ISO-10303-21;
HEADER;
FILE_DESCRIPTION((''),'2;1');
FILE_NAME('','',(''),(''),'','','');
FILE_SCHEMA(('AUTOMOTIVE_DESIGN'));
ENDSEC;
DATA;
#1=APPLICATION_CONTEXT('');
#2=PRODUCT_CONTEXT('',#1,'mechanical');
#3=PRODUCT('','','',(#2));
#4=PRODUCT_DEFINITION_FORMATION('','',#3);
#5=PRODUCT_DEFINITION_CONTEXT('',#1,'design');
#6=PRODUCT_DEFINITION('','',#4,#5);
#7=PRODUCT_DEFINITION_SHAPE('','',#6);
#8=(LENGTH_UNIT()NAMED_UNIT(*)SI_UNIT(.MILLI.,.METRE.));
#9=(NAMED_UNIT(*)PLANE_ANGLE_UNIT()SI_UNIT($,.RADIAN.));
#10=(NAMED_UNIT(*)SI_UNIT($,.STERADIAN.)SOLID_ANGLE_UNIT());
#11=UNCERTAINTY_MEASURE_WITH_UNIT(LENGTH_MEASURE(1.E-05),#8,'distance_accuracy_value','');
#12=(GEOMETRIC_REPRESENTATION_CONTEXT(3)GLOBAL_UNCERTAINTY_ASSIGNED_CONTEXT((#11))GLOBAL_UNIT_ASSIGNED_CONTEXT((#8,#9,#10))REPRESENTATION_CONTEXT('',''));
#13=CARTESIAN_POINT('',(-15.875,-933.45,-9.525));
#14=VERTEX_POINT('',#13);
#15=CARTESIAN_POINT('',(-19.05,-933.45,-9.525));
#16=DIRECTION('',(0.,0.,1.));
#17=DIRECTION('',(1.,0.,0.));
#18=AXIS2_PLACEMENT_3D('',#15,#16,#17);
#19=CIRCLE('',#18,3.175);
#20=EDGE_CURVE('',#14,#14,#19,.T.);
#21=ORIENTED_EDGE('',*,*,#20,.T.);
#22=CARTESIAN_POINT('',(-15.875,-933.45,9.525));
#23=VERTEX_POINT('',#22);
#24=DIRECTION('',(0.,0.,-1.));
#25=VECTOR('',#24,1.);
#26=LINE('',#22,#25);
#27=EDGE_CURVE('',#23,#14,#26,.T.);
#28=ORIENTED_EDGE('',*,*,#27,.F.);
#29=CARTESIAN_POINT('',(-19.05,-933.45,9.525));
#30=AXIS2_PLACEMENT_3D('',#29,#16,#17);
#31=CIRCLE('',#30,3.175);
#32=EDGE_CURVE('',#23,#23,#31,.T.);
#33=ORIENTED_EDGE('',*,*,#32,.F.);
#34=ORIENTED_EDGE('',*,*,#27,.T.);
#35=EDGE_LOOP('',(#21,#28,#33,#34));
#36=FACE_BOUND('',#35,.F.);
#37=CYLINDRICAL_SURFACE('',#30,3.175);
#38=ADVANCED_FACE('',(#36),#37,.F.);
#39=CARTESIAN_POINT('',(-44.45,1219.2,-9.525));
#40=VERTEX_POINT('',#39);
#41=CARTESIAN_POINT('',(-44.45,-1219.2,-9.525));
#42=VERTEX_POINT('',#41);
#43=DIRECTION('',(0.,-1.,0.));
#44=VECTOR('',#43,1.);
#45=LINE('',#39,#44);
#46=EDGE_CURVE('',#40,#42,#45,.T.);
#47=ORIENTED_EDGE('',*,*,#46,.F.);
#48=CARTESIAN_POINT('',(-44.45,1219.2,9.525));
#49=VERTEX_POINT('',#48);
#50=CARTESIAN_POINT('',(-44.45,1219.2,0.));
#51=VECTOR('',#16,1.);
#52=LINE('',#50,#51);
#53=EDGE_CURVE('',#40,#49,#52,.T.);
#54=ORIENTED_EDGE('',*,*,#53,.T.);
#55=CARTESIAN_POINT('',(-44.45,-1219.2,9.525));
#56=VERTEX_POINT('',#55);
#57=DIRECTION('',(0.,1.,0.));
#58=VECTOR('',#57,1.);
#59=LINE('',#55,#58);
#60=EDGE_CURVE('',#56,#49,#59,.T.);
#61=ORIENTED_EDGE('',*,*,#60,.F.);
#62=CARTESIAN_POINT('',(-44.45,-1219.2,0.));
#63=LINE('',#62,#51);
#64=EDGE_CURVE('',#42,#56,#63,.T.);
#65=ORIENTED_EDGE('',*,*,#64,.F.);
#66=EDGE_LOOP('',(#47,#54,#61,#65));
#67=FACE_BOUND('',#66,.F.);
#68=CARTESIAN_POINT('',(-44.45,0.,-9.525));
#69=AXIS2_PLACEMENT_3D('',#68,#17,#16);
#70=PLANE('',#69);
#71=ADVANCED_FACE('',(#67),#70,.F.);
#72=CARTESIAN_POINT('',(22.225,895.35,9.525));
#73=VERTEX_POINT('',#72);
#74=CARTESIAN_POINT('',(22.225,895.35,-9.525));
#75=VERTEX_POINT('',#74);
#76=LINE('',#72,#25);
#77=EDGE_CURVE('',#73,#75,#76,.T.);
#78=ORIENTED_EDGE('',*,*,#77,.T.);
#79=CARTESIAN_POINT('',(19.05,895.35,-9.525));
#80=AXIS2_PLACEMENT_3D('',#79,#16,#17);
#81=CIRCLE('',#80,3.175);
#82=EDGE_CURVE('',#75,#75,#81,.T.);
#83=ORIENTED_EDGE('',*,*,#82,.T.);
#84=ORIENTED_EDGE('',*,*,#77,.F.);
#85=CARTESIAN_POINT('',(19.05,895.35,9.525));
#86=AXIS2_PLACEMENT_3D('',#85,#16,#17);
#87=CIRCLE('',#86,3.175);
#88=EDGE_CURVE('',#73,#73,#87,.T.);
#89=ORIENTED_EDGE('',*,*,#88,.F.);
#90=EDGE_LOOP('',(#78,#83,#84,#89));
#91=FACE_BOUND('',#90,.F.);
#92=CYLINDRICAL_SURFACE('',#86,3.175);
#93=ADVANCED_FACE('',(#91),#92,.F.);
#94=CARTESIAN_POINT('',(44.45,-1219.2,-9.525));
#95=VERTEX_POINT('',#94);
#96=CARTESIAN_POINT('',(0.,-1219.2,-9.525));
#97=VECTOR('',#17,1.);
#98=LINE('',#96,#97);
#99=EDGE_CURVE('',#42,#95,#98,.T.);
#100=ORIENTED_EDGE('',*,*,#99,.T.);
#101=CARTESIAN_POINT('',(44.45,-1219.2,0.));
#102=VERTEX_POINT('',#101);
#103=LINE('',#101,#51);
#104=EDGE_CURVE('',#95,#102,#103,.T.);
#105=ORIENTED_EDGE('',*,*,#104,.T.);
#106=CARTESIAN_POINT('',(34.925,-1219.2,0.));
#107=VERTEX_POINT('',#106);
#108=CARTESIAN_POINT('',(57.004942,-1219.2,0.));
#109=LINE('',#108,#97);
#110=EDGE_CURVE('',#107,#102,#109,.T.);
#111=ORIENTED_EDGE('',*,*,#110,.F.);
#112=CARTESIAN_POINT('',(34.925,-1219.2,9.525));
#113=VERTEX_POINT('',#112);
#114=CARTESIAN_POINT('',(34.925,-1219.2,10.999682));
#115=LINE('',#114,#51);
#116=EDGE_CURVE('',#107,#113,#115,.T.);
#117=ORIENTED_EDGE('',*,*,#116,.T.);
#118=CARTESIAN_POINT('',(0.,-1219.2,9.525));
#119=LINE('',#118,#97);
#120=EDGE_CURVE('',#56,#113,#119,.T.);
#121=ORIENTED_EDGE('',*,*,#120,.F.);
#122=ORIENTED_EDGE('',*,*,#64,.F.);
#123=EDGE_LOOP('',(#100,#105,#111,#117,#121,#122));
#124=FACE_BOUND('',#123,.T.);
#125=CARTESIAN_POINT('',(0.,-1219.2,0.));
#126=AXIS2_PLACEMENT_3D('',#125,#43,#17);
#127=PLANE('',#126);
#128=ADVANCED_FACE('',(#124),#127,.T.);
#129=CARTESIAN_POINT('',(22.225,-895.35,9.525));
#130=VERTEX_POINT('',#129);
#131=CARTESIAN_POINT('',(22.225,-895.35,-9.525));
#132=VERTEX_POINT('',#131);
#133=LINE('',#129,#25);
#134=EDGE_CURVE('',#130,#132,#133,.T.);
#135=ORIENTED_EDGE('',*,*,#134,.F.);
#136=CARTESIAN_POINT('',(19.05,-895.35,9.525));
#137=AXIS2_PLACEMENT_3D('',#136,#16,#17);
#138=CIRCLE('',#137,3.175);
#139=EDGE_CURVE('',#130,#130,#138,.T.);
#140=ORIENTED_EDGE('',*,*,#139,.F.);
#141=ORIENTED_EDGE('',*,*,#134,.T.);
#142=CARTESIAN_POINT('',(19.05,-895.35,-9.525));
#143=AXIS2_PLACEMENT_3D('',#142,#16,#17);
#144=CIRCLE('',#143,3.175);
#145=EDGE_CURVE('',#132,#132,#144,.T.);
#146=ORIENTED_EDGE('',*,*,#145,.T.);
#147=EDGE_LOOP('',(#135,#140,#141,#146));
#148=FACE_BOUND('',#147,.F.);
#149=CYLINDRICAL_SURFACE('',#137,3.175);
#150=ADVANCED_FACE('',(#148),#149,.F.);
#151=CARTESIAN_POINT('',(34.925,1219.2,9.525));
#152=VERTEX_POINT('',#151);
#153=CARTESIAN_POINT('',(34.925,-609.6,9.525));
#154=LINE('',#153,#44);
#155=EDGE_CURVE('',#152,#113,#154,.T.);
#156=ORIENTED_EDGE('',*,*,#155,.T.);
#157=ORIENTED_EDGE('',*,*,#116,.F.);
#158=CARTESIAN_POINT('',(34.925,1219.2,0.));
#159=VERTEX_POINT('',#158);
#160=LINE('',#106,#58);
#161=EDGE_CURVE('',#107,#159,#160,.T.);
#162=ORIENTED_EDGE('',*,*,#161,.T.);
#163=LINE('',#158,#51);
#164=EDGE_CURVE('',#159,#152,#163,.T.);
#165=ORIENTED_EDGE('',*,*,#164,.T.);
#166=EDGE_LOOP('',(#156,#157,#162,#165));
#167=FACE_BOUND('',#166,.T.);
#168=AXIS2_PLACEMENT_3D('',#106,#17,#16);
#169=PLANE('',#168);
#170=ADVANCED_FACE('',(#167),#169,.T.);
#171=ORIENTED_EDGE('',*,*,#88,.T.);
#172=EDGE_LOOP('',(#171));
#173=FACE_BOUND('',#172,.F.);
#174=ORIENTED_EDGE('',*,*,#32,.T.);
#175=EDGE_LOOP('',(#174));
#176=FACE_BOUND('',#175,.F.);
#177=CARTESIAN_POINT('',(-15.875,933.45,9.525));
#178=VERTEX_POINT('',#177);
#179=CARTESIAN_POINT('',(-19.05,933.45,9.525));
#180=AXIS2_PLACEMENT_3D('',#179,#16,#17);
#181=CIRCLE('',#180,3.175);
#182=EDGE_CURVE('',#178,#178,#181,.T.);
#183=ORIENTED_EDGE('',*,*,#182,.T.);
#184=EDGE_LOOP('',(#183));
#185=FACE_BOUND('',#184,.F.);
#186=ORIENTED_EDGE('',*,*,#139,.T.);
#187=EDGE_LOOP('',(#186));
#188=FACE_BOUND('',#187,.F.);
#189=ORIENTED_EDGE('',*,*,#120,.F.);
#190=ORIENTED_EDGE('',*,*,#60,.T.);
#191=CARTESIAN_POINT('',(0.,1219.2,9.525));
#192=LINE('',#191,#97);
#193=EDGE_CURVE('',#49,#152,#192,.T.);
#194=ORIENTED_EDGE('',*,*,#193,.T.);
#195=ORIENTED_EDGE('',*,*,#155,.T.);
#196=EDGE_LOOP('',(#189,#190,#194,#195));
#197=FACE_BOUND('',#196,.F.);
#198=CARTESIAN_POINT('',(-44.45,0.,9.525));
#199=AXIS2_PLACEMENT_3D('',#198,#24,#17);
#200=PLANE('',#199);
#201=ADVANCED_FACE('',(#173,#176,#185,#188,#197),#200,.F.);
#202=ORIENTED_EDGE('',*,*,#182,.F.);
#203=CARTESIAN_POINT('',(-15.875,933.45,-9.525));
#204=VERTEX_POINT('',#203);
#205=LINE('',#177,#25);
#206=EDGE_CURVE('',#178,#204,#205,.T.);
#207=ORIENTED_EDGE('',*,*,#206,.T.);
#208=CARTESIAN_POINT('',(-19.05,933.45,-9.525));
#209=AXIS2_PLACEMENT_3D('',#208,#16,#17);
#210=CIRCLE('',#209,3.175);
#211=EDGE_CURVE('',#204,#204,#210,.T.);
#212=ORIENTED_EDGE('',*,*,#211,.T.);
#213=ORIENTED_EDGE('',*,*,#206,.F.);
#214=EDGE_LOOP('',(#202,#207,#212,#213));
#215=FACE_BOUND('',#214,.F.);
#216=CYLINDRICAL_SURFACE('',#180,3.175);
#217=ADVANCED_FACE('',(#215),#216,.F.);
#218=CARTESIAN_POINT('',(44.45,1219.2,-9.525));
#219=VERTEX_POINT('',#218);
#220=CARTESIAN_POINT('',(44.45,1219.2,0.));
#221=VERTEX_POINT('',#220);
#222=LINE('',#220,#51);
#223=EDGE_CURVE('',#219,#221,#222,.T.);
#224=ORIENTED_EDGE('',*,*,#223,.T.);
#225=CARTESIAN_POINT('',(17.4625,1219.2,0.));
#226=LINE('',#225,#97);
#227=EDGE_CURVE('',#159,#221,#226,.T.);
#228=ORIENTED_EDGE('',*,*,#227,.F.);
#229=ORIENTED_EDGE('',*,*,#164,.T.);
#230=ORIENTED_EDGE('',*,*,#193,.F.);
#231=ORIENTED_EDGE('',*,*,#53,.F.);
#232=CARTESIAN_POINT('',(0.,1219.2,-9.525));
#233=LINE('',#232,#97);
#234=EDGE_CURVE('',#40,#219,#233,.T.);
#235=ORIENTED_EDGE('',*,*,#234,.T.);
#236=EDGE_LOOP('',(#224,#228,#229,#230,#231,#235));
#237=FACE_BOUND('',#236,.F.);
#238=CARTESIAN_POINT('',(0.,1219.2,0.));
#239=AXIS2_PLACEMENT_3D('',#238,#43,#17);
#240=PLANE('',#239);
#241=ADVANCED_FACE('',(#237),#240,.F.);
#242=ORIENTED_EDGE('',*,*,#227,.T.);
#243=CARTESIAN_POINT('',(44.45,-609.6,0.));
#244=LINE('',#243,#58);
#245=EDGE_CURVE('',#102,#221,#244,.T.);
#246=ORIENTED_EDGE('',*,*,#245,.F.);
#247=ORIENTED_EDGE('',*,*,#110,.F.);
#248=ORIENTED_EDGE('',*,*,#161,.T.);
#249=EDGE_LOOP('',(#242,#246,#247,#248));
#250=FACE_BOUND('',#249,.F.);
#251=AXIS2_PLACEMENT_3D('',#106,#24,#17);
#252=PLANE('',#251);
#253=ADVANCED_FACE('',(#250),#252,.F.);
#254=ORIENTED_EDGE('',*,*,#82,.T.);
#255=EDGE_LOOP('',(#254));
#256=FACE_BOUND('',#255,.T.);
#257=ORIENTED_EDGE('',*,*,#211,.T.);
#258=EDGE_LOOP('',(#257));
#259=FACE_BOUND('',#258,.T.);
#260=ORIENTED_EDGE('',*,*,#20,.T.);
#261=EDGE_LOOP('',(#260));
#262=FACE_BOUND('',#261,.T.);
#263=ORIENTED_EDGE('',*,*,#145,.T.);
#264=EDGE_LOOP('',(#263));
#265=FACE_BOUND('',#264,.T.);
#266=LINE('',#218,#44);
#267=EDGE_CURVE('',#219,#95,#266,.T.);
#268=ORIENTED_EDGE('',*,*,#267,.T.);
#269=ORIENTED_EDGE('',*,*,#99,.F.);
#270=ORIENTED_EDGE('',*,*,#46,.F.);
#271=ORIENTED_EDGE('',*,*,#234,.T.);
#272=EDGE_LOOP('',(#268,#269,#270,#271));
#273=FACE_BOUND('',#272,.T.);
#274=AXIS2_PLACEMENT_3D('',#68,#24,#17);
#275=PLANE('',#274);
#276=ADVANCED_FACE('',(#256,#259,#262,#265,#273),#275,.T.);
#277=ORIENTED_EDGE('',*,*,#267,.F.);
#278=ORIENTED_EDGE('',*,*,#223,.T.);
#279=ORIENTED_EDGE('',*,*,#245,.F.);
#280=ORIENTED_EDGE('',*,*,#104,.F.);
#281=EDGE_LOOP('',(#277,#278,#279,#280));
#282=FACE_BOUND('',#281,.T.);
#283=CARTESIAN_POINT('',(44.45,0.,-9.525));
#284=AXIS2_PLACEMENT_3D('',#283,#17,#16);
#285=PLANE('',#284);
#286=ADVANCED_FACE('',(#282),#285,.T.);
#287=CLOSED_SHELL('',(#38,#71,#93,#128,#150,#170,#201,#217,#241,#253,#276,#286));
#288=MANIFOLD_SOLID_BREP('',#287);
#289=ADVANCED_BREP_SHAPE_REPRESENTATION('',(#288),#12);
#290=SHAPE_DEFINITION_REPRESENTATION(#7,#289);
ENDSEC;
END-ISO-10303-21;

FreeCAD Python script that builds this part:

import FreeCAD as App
import Part
import Sketcher
from FreeCAD import Vector
Q = App.Units.Quantity

doc = App.newDocument("Part")
body = doc.addObject("PartDesign::Body", "Body")

# Sketch on XZ plane
sketch1 = body.newObject("Sketcher::SketchObject", "Sketch")
sketch1.AttachmentSupport = (doc.getObject("XZ_Plane"), [""])
sketch1.MapMode = "FlatFace"
sketch1.addGeometry([
    Part.LineSegment(Vector(-44.45, 9.525, 0), Vector(-44.45, -9.525, 0)),
    Part.LineSegment(Vector(-44.45, -9.525, 0), Vector(44.45, -9.525, 0)),
    Part.LineSegment(Vector(44.45, -9.525, 0), Vector(44.45, 9.525, 0)),
    Part.LineSegment(Vector(44.45, 9.525, 0), Vector(-44.45, 9.525, 0)),
], False)
sketch1.addConstraint([
    Sketcher.Constraint("Coincident", 0, 2, 1, 1),
    Sketcher.Constraint("Coincident", 1, 2, 2, 1),
    Sketcher.Constraint("Coincident", 2, 2, 3, 1),
    Sketcher.Constraint("Coincident", 3, 2, 0, 1),
    Sketcher.Constraint("Vertical", 0),
    Sketcher.Constraint("Horizontal", 1),
    Sketcher.Constraint("Vertical", 2),
    Sketcher.Constraint("Horizontal", 3),
    Sketcher.Constraint("Symmetric", 0, 2, 2, 2, -1, 1),
    Sketcher.Constraint("DistanceX", 1, 1, 1, 2, Q("3.5 in")),
    Sketcher.Constraint("DistanceY", 0, 2, 0, 1, Q("0.75 in")),
])
pad1 = body.newObject("PartDesign::Pad", "Pad")
pad1.Profile = sketch1
pad1.Length = Q("96 in")
pad1.Midplane = True

# Sketch on XZ plane
sketch2 = body.newObject("Sketcher::SketchObject", "Sketch001")
sketch2.AttachmentSupport = (doc.getObject("XZ_Plane"), [""])
sketch2.MapMode = "FlatFace"
sketch2.AttachmentOffset = App.Placement(Vector(0, 0, 48 * 25.4), App.Rotation())
sketch2.addGeometry([
    Part.LineSegment(Vector(34.925, 21.999364, 0), Vector(34.925, 0, 0)),
    Part.LineSegment(Vector(34.925, 0, 0), Vector(79.084885, 0, 0)),
    Part.LineSegment(Vector(79.084885, 0, 0), Vector(79.084885, 21.999364, 0)),
    Part.LineSegment(Vector(79.084885, 21.999364, 0), Vector(34.925, 21.999364, 0)),
], False)
sketch2.addConstraint([
    Sketcher.Constraint("Coincident", 0, 2, 1, 1),
    Sketcher.Constraint("Coincident", 1, 2, 2, 1),
    Sketcher.Constraint("Coincident", 2, 2, 3, 1),
    Sketcher.Constraint("Coincident", 3, 2, 0, 1),
    Sketcher.Constraint("Vertical", 0),
    Sketcher.Constraint("Horizontal", 1),
    Sketcher.Constraint("Vertical", 2),
    Sketcher.Constraint("Horizontal", 3),
    Sketcher.Constraint("PointOnObject", 0, 2, -1),
    Sketcher.Constraint("DistanceX", -1, 1, 0, 2, Q("1.375 in")),
    Sketcher.Constraint("DistanceX", 1, 1, 1, 2, Q("44.159885 mm")),
    Sketcher.Constraint("DistanceY", 0, 2, 0, 1, Q("21.999364 mm")),
])
pocket1 = body.newObject("PartDesign::Pocket", "Pocket")
pocket1.Profile = sketch2
pocket1.Type = "ThroughAll"

# Sketch on XY plane
sketch3 = body.newObject("Sketcher::SketchObject", "Sketch002")
sketch3.AttachmentSupport = (doc.getObject("XY_Plane"), [""])
sketch3.MapMode = "FlatFace"
sketch3.AttachmentOffset = App.Placement(Vector(0, 0, 0.375 * 25.4), App.Rotation())
sketch3.addGeometry([
    Part.Circle(Vector(19.05, -895.35, 0), Vector(0, 0, 1), 3.175),
    Part.Circle(Vector(-19.05, -933.45, 0), Vector(0, 0, 1), 3.175),
    Part.Circle(Vector(-19.05, 933.45, 0), Vector(0, 0, 1), 3.175),
    Part.Circle(Vector(19.05, 895.35, 0), Vector(0, 0, 1), 3.175),
], False)
sketch3.addConstraint([
    Sketcher.Constraint("Equal", 0, 1),
    Sketcher.Constraint("Equal", 1, 2),
    Sketcher.Constraint("Equal", 2, 3),
    Sketcher.Constraint("Symmetric", 1, 3, 2, 3, -1),
    Sketcher.Constraint("Symmetric", 0, 3, 3, 3, -1),
    Sketcher.Constraint("Diameter", 0, Q("0.25 in")),
    Sketcher.Constraint("DistanceY", 0, 3, 2, 3, Q("72 in")),
    Sketcher.Constraint("DistanceX", 1, 3, 0, 3, Q("1.5 in")),
    Sketcher.Constraint("DistanceY", 1, 3, 0, 3, Q("1.5 in")),
    Sketcher.Constraint("DistanceX", -1, 1, 0, 3, Q("0.75 in")),
])
pocket2 = body.newObject("PartDesign::Pocket", "Pocket001")
pocket2.Profile = sketch3
pocket2.Type = "ThroughAll"

doc.recompute()
